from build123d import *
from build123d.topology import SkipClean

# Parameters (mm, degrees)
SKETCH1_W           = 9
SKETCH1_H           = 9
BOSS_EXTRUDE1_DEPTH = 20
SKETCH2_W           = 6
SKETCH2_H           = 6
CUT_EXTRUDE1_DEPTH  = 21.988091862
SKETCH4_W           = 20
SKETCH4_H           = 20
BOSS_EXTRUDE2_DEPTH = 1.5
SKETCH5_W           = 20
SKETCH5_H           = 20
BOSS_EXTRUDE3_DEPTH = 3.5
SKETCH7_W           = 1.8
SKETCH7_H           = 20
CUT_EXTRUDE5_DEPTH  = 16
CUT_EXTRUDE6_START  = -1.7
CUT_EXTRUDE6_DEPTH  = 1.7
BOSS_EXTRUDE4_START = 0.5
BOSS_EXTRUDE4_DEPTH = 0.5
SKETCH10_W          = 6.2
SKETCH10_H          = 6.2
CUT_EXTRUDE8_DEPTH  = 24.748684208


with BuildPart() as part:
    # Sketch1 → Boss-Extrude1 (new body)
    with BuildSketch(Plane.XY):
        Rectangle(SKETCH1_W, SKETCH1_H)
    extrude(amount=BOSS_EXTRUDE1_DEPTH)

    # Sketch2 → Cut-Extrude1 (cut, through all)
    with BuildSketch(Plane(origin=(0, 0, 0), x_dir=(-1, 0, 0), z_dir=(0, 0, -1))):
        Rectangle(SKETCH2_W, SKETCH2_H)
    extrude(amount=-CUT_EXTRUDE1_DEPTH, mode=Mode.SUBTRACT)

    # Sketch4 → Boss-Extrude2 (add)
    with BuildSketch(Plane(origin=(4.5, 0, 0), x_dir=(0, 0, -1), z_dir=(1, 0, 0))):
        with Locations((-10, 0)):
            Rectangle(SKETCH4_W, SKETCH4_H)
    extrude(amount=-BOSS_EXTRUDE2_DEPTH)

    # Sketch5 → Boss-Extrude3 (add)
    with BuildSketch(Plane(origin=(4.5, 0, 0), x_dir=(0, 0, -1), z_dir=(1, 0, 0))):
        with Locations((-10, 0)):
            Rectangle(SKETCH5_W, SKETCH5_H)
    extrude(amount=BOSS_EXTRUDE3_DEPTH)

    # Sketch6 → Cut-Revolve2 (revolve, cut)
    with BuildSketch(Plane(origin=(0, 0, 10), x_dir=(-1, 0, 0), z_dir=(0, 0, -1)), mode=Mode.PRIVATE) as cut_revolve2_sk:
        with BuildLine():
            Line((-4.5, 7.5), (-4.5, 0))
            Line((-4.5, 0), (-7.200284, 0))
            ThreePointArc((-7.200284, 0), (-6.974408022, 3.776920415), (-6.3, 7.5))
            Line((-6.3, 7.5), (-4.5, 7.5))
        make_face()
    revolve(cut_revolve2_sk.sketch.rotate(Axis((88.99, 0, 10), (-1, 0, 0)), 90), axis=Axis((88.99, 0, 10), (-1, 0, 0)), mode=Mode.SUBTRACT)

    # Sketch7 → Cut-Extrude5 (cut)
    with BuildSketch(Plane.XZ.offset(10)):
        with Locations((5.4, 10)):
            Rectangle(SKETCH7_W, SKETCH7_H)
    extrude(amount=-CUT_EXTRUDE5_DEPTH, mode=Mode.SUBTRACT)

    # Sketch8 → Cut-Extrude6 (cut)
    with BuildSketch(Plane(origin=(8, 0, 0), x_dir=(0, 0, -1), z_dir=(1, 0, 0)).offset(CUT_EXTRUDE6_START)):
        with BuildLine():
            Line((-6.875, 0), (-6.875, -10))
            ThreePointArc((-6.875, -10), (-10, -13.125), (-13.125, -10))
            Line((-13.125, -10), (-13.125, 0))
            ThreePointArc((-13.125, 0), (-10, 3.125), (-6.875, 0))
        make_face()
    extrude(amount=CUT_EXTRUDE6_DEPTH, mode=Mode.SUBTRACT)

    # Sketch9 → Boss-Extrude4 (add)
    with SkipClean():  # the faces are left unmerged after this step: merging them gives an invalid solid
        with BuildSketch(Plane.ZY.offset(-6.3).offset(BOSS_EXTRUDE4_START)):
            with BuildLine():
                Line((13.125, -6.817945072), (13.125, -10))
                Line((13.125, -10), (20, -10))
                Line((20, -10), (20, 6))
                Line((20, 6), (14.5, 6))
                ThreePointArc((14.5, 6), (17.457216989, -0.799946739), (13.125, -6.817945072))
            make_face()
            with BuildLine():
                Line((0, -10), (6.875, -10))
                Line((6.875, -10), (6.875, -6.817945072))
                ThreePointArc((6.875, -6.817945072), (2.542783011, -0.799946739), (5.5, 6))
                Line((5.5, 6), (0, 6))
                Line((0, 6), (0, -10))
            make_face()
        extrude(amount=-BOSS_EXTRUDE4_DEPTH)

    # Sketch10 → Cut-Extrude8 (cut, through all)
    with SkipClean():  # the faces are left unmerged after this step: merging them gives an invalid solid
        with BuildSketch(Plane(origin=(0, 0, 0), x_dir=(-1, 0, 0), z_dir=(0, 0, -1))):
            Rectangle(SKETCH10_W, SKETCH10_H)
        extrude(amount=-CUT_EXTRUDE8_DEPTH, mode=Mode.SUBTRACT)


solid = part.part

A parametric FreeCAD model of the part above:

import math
import FreeCAD as App
import Part
import Sketcher

V = App.Vector
Q = App.Units.Quantity


def add_polygon(sketch, points):
    """Adds a closed chain of lines whose ends are joined by coincident constraints."""
    first, n = sketch.GeometryCount, len(points)
    for a, b in zip(points, points[1:] + points[:1]):
        sketch.addGeometry(Part.LineSegment(App.Vector(*a, 0), App.Vector(*b, 0)), False)
    for i in range(n):
        sketch.addConstraint(Sketcher.Constraint("Coincident", first + i, 2, first + (i + 1) % n, 1))

doc = App.newDocument("Part")
body = doc.addObject("PartDesign::Body", "Body")

# Sketch on XY plane
sketch1 = body.newObject("Sketcher::SketchObject", "Sketch")
sketch1.AttachmentSupport = (doc.getObject("XY_Plane"), [""])
sketch1.MapMode = "FlatFace"
add_polygon(sketch1, [(-4, 4), (-4, -4), (4, -4), (4, 4)])  # lines 0-3
sketch1.addConstraint(Sketcher.Constraint("Vertical", 0))
sketch1.addConstraint(Sketcher.Constraint("Horizontal", 1))
sketch1.addConstraint(Sketcher.Constraint("Vertical", 2))
sketch1.addConstraint(Sketcher.Constraint("Horizontal", 3))
sketch1.addConstraint(Sketcher.Constraint("Symmetric", 0, 2, 2, 2, -1, 1))
sketch1.addConstraint(Sketcher.Constraint("Equal", 3, 0))
sketch1.addConstraint(Sketcher.Constraint("DistanceX", 1, 1, 1, 2, Q("9 mm")))
pad1 = body.newObject("PartDesign::Pad", "Pad")
pad1.Profile = sketch1
pad1.Length = 20

# Sketch on XY plane
sketch2 = body.newObject("Sketcher::SketchObject", "Sketch001")
sketch2.AttachmentSupport = (doc.getObject("XY_Plane"), [""])
sketch2.MapMode = "FlatFace"
add_polygon(sketch2, [(3, 3), (3, -3), (-3, -3), (-3, 3)])  # lines 0-3
sketch2.addConstraint(Sketcher.Constraint("Vertical", 0))
sketch2.addConstraint(Sketcher.Constraint("Horizontal", 1))
sketch2.addConstraint(Sketcher.Constraint("Vertical", 2))
sketch2.addConstraint(Sketcher.Constraint("Horizontal", 3))
sketch2.addConstraint(Sketcher.Constraint("Symmetric", 0, 2, 2, 2, -1, 1))
sketch2.addConstraint(Sketcher.Constraint("Equal", 3, 0))
sketch2.addConstraint(Sketcher.Constraint("DistanceX", 1, 2, 1, 1, Q("6 mm")))
pocket1 = body.newObject("PartDesign::Pocket", "Pocket")
pocket1.Profile = sketch2
pocket1.Type = "ThroughAll"
pocket1.Reversed = True

# Sketch on YZ plane
sketch3 = body.newObject("Sketcher::SketchObject", "Sketch002")
sketch3.AttachmentSupport = (doc.getObject("YZ_Plane"), [""])
sketch3.MapMode = "FlatFace"
sketch3.AttachmentOffset = App.Placement(V(0, 0, 4.5), App.Rotation())
add_polygon(sketch3, [(10, 20), (-10, 20), (-10, 0), (10, 0)])  # lines 0-3
sketch3.addConstraint(Sketcher.Constraint("Horizontal", 0))
sketch3.addConstraint(Sketcher.Constraint("Vertical", 1))
sketch3.addConstraint(Sketcher.Constraint("Horizontal", 2))
sketch3.addConstraint(Sketcher.Constraint("Vertical", 3))
sketch3.addConstraint(Sketcher.Constraint("Symmetric", 1, 2, 2, 2, -1, 1))
sketch3.addConstraint(Sketcher.Constraint("Equal", 2, 1))
sketch3.addConstraint(Sketcher.Constraint("DistanceX", 0, 2, 0, 1, Q("20 mm")))
pad2 = body.newObject("PartDesign::Pad", "Pad001")
pad2.Profile = sketch3
pad2.Length = 1.5
pad2.Reversed = True

# Sketch on YZ plane
sketch4 = body.newObject("Sketcher::SketchObject", "Sketch003")
sketch4.AttachmentSupport = (doc.getObject("YZ_Plane"), [""])
sketch4.MapMode = "FlatFace"
sketch4.AttachmentOffset = App.Placement(V(0, 0, 4.5), App.Rotation())
add_polygon(sketch4, [(10, 20), (-10, 20), (-10, 0), (10, 0)])  # lines 0-3
sketch4.addConstraint(Sketcher.Constraint("Horizontal", 0))
sketch4.addConstraint(Sketcher.Constraint("Vertical", 1))
sketch4.addConstraint(Sketcher.Constraint("Horizontal", 2))
sketch4.addConstraint(Sketcher.Constraint("Vertical", 3))
sketch4.addConstraint(Sketcher.Constraint("Symmetric", 1, 2, 2, 2, -1, 1))
sketch4.addConstraint(Sketcher.Constraint("Equal", 2, 1))
sketch4.addConstraint(Sketcher.Constraint("DistanceX", 0, 2, 0, 1, Q("20 mm")))
pad3 = body.newObject("PartDesign::Pad", "Pad002")
pad3.Profile = sketch4
pad3.Length = 3.5

# Sketch on XY plane
sketch5 = body.newObject("Sketcher::SketchObject", "Sketch004")
sketch5.AttachmentSupport = (doc.getObject("XY_Plane"), [""])
sketch5.MapMode = "FlatFace"
sketch5.AttachmentOffset = App.Placement(V(0, 0, 10), App.Rotation())
sketch5.addGeometry(Part.LineSegment(V(4.5, 0, 0), V(4.5, 7.5, 0)), False)
sketch5.addGeometry(Part.LineSegment(V(4.5, 7.5, 0), V(6.3, 7.5, 0)), False)
sketch5.addGeometry(Part.ArcOfCircle(Part.Circle(V(-24.5, 0, 0), V(0, 0, 1), 31.7), math.radians(0), math.radians(13.69)), False)
sketch5.addGeometry(Part.LineSegment(V(7.2, 0, 0), V(4.5, 0, 0)), False)
sketch5.addConstraint(Sketcher.Constraint("Coincident", 0, 2, 1, 1))
sketch5.addConstraint(Sketcher.Constraint("Coincident", 1, 2, 2, 2))
sketch5.addConstraint(Sketcher.Constraint("Coincident", 2, 1, 3, 1))
sketch5.addConstraint(Sketcher.Constraint("Coincident", 3, 2, 0, 1))
sketch5.addConstraint(Sketcher.Constraint("Vertical", 0))
sketch5.addConstraint(Sketcher.Constraint("Horizontal", 1))
sketch5.addConstraint(Sketcher.Constraint("Horizontal", 3))
sketch5.addConstraint(Sketcher.Constraint("PointOnObject", 2, 3, -1))
sketch5.addConstraint(Sketcher.Constraint("PointOnObject", 2, 1, -1))
sketch5.addConstraint(Sketcher.Constraint("DistanceX", 1, 1, 1, 2, Q("1.8 mm")))
sketch5.addConstraint(Sketcher.Constraint("DistanceY", 0, 1, 0, 2, Q("7.5 mm")))
sketch5.addConstraint(Sketcher.Constraint("DistanceX", -1, 1, 0, 2, Q("4.5 mm")))
sketch5.addConstraint(Sketcher.Constraint("DistanceX", 2, 3, -1, 1, Q("24.49 mm")))
groove = body.newObject("PartDesign::Groove", "Groove")
groove.Profile = sketch5
groove.ReferenceAxis = (sketch5, ["H_Axis"])
groove.Angle = 360

# Sketch on XZ plane
sketch6 = body.newObject("Sketcher::SketchObject", "Sketch005")
sketch6.AttachmentSupport = (doc.getObject("XZ_Plane"), [""])
sketch6.MapMode = "FlatFace"
sketch6.AttachmentOffset = App.Placement(V(0, 0, 10), App.Rotation())
add_polygon(sketch6, [(4.5, 20), (4.5, 0), (6.3, 0), (6.3, 20)])  # lines 0-3
sketch6.addConstraint(Sketcher.Constraint("Vertical", 0))
sketch6.addConstraint(Sketcher.Constraint("Horizontal", 1))
sketch6.addConstraint(Sketcher.Constraint("Vertical", 2))
sketch6.addConstraint(Sketcher.Constraint("Horizontal", 3))
sketch6.addConstraint(Sketcher.Constraint("PointOnObject", 0, 2, -1))
sketch6.addConstraint(Sketcher.Constraint("DistanceY", 0, 2, 0, 1, Q("20 mm")))
sketch6.addConstraint(Sketcher.Constraint("DistanceX", 1, 1, 1, 2, Q("1.8 mm")))
sketch6.addConstraint(Sketcher.Constraint("DistanceX", -1, 1, 0, 2, Q("4.5 mm")))
pocket2 = body.newObject("PartDesign::Pocket", "Pocket001")
pocket2.Profile = sketch6
pocket2.Length = 16

# Sketch on YZ plane
sketch7 = body.newObject("Sketcher::SketchObject", "Sketch006")
sketch7.AttachmentSupport = (doc.getObject("YZ_Plane"), [""])
sketch7.MapMode = "FlatFace"
sketch7.AttachmentOffset = App.Placement(V(0, 0, 6.3), App.Rotation())
sketch7.addGeometry(Part.LineSegment(V(-10, 6.9, 0), V(0, 6.9, 0)), False)
sketch7.addGeometry(Part.ArcOfCircle(Part.Circle(V(0, 10, 0), V(0, 0, 1), 3.1), math.radians(-90), math.radians(90)), False)
sketch7.addGeometry(Part.LineSegment(V(0, 13.1, 0), V(-10, 13.1, 0)), False)
sketch7.addGeometry(Part.ArcOfCircle(Part.Circle(V(-10, 10, 0), V(0, 0, 1), 3.1), math.radians(90), math.radians(270)), False)
sketch7.addConstraint(Sketcher.Constraint("Tangent", 0, 2, 1, 1))
sketch7.addConstraint(Sketcher.Constraint("Tangent", 1, 2, 2, 1))
sketch7.addConstraint(Sketcher.Constraint("Tangent", 2, 2, 3, 1))
sketch7.addConstraint(Sketcher.Constraint("Tangent", 3, 2, 0, 1))
sketch7.addConstraint(Sketcher.Constraint("Horizontal", 0))
sketch7.addConstraint(Sketcher.Constraint("Horizontal", 2))
sketch7.addConstraint(Sketcher.Constraint("PointOnObject", 1, 3, -2))
sketch7.addConstraint(Sketcher.Constraint("DistanceX", 0, 1, 0, 2, Q("10 mm")))
sketch7.addConstraint(Sketcher.Constraint("DistanceY", -1, 1, 1, 3, Q("10 mm")))
sketch7.addConstraint(Sketcher.Constraint("Radius", 1, Q("3.125 mm")))
pocket3 = body.newObject("PartDesign::Pocket", "Pocket002")
pocket3.Profile = sketch7
pocket3.Length = 1.7
pocket3.Reversed = True

# Sketch on YZ plane
sketch8 = body.newObject("Sketcher::SketchObject", "Sketch007")
sketch8.AttachmentSupport = (doc.getObject("YZ_Plane"), [""])
sketch8.MapMode = "FlatFace"
sketch8.AttachmentOffset = App.Placement(V(0, 0, 5.8), App.Rotation())
sketch8.addGeometry(Part.LineSegment(V(-6.8, 13.1, 0), V(-10, 13.1, 0)), False)
sketch8.addGeometry(Part.LineSegment(V(-10, 13.1, 0), V(-10, 20, 0)), False)
sketch8.addGeometry(Part.LineSegment(V(-10, 20, 0), V(6, 20, 0)), False)
sketch8.addGeometry(Part.LineSegment(V(6, 20, 0), V(6, 14.5, 0)), False)
sketch8.addGeometry(Part.ArcOfCircle(Part.Circle(V(0, 10, 0), V(0, 0, 1), 7.5), math.radians(37), math.radians(155)), False)
sketch8.addGeometry(Part.LineSegment(V(-10, 0, 0), V(-10, 6.9, 0)), False)
sketch8.addGeometry(Part.LineSegment(V(-10, 6.9, 0), V(-6.8, 6.9, 0)), False)
sketch8.addGeometry(Part.ArcOfCircle(Part.Circle(V(0, 10, 0), V(0, 0, 1), 7.5), math.radians(-155), math.radians(-37)), False)
sketch8.addGeometry(Part.LineSegment(V(6, 5.5, 0), V(6, 0, 0)), False)
sketch8.addGeometry(Part.LineSegment(V(6, 0, 0), V(-10, 0, 0)), False)
sketch8.addConstraint(Sketcher.Constraint("Coincident", 0, 2, 1, 1))
sketch8.addConstraint(Sketcher.Constraint("Coincident", 1, 2, 2, 1))
sketch8.addConstraint(Sketcher.Constraint("Coincident", 2, 2, 3, 1))
sketch8.addConstraint(Sketcher.Constraint("Coincident", 3, 2, 4, 1))
sketch8.addConstraint(Sketcher.Constraint("Coincident", 4, 2, 0, 1))
sketch8.addConstraint(Sketcher.Constraint("Coincident", 5, 2, 6, 1))
sketch8.addConstraint(Sketcher.Constraint("Coincident", 6, 2, 7, 1))
sketch8.addConstraint(Sketcher.Constraint("Coincident", 7, 2, 8, 1))
sketch8.addConstraint(Sketcher.Constraint("Coincident", 8, 2, 9, 1))
sketch8.addConstraint(Sketcher.Constraint("Coincident", 9, 2, 5, 1))
sketch8.addConstraint(Sketcher.Constraint("Horizontal", 0))
sketch8.addConstraint(Sketcher.Constraint("Vertical", 1))
sketch8.addConstraint(Sketcher.Constraint("Horizontal", 2))
sketch8.addConstraint(Sketcher.Constraint("Vertical", 3))
sketch8.addConstraint(Sketcher.Constraint("Vertical", 5))
sketch8.addConstraint(Sketcher.Constraint("Horizontal", 6))
sketch8.addConstraint(Sketcher.Constraint("Vertical", 8))
sketch8.addConstraint(Sketcher.Constraint("Horizontal", 9))
sketch8.addConstraint(Sketcher.Constraint("Coincident", 7, 3, 4, 3))
sketch8.addConstraint(Sketcher.Constraint("Equal", 4, 7))
sketch8.addConstraint(Sketcher.Constraint("PointOnObject", 4, 3, -2))
sketch8.addConstraint(Sketcher.Constraint("PointOnObject", 8, 2, -1))
sketch8.addConstraint(Sketcher.Constraint("Vertical", 1, 2, 5, 2))
sketch8.addConstraint(Sketcher.Constraint("Vertical", 4, 2, 6, 2))
sketch8.addConstraint(Sketcher.Constraint("Vertical", 3, 2, 7, 2))
sketch8.addConstraint(Sketcher.Constraint("Equal", 1, 5))
sketch8.addConstraint(Sketcher.Constraint("Radius", 4, Q("7.5 mm")))
sketch8.addConstraint(Sketcher.Constraint("DistanceX", 2, 1, 2, 2, Q("16 mm")))
sketch8.addConstraint(Sketcher.Constraint("DistanceY", 3, 2, 3, 1, Q("5.5 mm")))
sketch8.addConstraint(Sketcher.Constraint("DistanceY", -1, 1, 4, 3, Q("10 mm")))
sketch8.addConstraint(Sketcher.Constraint("DistanceY", 1, 1, 1, 2, Q("6.875 mm")))
pad4 = body.newObject("PartDesign::Pad", "Pad003")
pad4.Profile = sketch8
pad4.Length = 0.5

# Sketch on XY plane
sketch9 = body.newObject("Sketcher::SketchObject", "Sketch008")
sketch9.AttachmentSupport = (doc.getObject("XY_Plane"), [""])
sketch9.MapMode = "FlatFace"
add_polygon(sketch9, [(3, 3), (3, -3), (-3, -3), (-3, 3)])  # lines 0-3
sketch9.addConstraint(Sketcher.Constraint("Vertical", 0))
sketch9.addConstraint(Sketcher.Constraint("Horizontal", 1))
sketch9.addConstraint(Sketcher.Constraint("Vertical", 2))
sketch9.addConstraint(Sketcher.Constraint("Horizontal", 3))
sketch9.addConstraint(Sketcher.Constraint("Symmetric", 0, 2, 2, 2, -1, 1))
sketch9.addConstraint(Sketcher.Constraint("Equal", 3, 0))
sketch9.addConstraint(Sketcher.Constraint("DistanceX", 1, 2, 1, 1, Q("6.2 mm")))
pocket4 = body.newObject("PartDesign::Pocket", "Pocket003")
pocket4.Profile = sketch9
pocket4.Type = "ThroughAll"
pocket4.Reversed = True

doc.recompute()
